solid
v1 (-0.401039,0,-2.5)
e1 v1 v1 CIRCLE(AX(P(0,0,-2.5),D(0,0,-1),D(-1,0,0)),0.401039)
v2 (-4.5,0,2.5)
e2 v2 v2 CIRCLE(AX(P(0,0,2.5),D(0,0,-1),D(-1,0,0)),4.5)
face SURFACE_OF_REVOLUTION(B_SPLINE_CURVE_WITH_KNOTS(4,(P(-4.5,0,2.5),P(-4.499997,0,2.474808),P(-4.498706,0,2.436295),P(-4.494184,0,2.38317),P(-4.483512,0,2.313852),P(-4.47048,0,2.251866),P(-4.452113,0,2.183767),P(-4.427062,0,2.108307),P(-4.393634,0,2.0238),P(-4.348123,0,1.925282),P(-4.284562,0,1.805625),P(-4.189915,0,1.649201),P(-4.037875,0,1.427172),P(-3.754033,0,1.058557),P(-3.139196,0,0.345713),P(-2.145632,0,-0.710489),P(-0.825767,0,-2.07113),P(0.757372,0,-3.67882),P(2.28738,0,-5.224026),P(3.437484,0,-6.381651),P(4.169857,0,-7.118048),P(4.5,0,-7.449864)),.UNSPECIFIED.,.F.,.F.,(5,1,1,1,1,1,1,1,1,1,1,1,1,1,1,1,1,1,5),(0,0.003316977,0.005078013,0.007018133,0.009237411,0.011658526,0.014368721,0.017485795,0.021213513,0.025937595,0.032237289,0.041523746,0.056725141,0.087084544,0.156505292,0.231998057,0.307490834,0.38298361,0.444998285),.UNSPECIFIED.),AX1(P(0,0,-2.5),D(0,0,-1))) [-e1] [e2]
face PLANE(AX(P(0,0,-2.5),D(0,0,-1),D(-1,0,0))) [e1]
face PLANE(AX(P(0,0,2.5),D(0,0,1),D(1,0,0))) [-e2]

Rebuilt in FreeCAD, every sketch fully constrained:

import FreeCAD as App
import Part
import Sketcher
from FreeCAD import Vector
Q = App.Units.Quantity


def add_polygon(sketch, points):
    """Adds a closed chain of lines whose ends are joined by coincident constraints."""
    first, n = sketch.GeometryCount, len(points)
    for a, b in zip(points, points[1:] + points[:1]):
        sketch.addGeometry(Part.LineSegment(App.Vector(*a, 0), App.Vector(*b, 0)), False)
    for i in range(n):
        sketch.addConstraint(Sketcher.Constraint("Coincident", first + i, 2, first + (i + 1) % n, 1))

doc = App.newDocument("Part")
body = doc.addObject("PartDesign::Body", "Body")

sketch1 = body.newObject("Sketcher::SketchObject", "Sketch")
sketch1.AttachmentSupport = (doc.getObject("XZ_Plane"), [""])
sketch1.MapMode = "FlatFace"
add_polygon(sketch1, [(-4.5, -2.5), (-4.5, 2.5), (0, 2.5), (0, -2.5)])
sketch1.addConstraint([
    Sketcher.Constraint("Vertical", 0),
    Sketcher.Constraint("Horizontal", 1),
    Sketcher.Constraint("Vertical", 2),
    Sketcher.Constraint("Horizontal", 3),
    Sketcher.Constraint("Symmetric", 1, 2, 2, 2, -1, 1),
    Sketcher.Constraint("DistanceY", 0, 1, 0, 2, Q("5 mm")),
    Sketcher.Constraint("DistanceX", 1, 1, 1, 2, Q("4.5 mm")),
])
revolution = body.newObject("PartDesign::Revolution", "Revolution")
revolution.Profile = sketch1
revolution.ReferenceAxis = (sketch1, ["V_Axis"])
revolution.Angle = 360

sketch2 = body.newObject("Sketcher::SketchObject", "Sketch001")
sketch2.AttachmentSupport = (doc.getObject("XZ_Plane"), [""])
sketch2.MapMode = "FlatFace"
sketch2.addGeometry([
    Part.LineSegment(Vector(-4.5, -2.5, 0), Vector(-4.5, 2.5, 0)),
    Part.BSplineCurve([Vector(-4.5, 2.5, 0), Vector(-4.499997, 2.474808, 0), Vector(-4.498706, 2.436295, 0), Vector(-4.494184, 2.38317, 0), Vector(-4.483512, 2.313852, 0), Vector(-4.47048, 2.251866, 0), Vector(-4.452113, 2.183767, 0), Vector(-4.427062, 2.108307, 0), Vector(-4.393634, 2.0238, 0), Vector(-4.348123, 1.925282, 0), Vector(-4.284562, 1.805625, 0), Vector(-4.189915, 1.649201, 0), Vector(-4.037875, 1.427172, 0), Vector(-3.754033, 1.058557, 0), Vector(-3.139196, 0.345713, 0), Vector(-2.231635, -0.619064, 0), Vector(-1.396596, -1.482406, 0), Vector(-0.714946, -2.179886, 0), Vector(-0.401039, -2.5, 0)], [5, 1, 1, 1, 1, 1, 1, 1, 1, 1, 1, 1, 1, 1, 1, 5], [0, 0.003316977, 0.005078013, 0.007018133, 0.009237411, 0.011658526, 0.014368721, 0.017485795, 0.021213513, 0.025937595, 0.032237289, 0.041523746, 0.056725141, 0.087084544, 0.156505292, 0.215510652], False, 4, [1, 1, 1, 1, 1, 1, 1, 1, 1, 1, 1, 1, 1, 1, 1, 1, 1, 1, 1], False),
    Part.LineSegment(Vector(-0.401039, -2.5, 0), Vector(-4.5, -2.5, 0)),
], False)
sketch2.addConstraint([
    Sketcher.Constraint("Block", 1),
    Sketcher.Constraint("Coincident", 0, 2, 1, 1),
    Sketcher.Constraint("Coincident", 1, 2, 2, 1),
    Sketcher.Constraint("Coincident", 2, 2, 0, 1),
    Sketcher.Constraint("Vertical", 0),
    Sketcher.Constraint("Horizontal", 2),
])
groove = body.newObject("PartDesign::Groove", "Groove")
groove.Profile = sketch2
groove.ReferenceAxis = (sketch2, ["V_Axis"])
groove.Angle = 360

doc.recompute()
